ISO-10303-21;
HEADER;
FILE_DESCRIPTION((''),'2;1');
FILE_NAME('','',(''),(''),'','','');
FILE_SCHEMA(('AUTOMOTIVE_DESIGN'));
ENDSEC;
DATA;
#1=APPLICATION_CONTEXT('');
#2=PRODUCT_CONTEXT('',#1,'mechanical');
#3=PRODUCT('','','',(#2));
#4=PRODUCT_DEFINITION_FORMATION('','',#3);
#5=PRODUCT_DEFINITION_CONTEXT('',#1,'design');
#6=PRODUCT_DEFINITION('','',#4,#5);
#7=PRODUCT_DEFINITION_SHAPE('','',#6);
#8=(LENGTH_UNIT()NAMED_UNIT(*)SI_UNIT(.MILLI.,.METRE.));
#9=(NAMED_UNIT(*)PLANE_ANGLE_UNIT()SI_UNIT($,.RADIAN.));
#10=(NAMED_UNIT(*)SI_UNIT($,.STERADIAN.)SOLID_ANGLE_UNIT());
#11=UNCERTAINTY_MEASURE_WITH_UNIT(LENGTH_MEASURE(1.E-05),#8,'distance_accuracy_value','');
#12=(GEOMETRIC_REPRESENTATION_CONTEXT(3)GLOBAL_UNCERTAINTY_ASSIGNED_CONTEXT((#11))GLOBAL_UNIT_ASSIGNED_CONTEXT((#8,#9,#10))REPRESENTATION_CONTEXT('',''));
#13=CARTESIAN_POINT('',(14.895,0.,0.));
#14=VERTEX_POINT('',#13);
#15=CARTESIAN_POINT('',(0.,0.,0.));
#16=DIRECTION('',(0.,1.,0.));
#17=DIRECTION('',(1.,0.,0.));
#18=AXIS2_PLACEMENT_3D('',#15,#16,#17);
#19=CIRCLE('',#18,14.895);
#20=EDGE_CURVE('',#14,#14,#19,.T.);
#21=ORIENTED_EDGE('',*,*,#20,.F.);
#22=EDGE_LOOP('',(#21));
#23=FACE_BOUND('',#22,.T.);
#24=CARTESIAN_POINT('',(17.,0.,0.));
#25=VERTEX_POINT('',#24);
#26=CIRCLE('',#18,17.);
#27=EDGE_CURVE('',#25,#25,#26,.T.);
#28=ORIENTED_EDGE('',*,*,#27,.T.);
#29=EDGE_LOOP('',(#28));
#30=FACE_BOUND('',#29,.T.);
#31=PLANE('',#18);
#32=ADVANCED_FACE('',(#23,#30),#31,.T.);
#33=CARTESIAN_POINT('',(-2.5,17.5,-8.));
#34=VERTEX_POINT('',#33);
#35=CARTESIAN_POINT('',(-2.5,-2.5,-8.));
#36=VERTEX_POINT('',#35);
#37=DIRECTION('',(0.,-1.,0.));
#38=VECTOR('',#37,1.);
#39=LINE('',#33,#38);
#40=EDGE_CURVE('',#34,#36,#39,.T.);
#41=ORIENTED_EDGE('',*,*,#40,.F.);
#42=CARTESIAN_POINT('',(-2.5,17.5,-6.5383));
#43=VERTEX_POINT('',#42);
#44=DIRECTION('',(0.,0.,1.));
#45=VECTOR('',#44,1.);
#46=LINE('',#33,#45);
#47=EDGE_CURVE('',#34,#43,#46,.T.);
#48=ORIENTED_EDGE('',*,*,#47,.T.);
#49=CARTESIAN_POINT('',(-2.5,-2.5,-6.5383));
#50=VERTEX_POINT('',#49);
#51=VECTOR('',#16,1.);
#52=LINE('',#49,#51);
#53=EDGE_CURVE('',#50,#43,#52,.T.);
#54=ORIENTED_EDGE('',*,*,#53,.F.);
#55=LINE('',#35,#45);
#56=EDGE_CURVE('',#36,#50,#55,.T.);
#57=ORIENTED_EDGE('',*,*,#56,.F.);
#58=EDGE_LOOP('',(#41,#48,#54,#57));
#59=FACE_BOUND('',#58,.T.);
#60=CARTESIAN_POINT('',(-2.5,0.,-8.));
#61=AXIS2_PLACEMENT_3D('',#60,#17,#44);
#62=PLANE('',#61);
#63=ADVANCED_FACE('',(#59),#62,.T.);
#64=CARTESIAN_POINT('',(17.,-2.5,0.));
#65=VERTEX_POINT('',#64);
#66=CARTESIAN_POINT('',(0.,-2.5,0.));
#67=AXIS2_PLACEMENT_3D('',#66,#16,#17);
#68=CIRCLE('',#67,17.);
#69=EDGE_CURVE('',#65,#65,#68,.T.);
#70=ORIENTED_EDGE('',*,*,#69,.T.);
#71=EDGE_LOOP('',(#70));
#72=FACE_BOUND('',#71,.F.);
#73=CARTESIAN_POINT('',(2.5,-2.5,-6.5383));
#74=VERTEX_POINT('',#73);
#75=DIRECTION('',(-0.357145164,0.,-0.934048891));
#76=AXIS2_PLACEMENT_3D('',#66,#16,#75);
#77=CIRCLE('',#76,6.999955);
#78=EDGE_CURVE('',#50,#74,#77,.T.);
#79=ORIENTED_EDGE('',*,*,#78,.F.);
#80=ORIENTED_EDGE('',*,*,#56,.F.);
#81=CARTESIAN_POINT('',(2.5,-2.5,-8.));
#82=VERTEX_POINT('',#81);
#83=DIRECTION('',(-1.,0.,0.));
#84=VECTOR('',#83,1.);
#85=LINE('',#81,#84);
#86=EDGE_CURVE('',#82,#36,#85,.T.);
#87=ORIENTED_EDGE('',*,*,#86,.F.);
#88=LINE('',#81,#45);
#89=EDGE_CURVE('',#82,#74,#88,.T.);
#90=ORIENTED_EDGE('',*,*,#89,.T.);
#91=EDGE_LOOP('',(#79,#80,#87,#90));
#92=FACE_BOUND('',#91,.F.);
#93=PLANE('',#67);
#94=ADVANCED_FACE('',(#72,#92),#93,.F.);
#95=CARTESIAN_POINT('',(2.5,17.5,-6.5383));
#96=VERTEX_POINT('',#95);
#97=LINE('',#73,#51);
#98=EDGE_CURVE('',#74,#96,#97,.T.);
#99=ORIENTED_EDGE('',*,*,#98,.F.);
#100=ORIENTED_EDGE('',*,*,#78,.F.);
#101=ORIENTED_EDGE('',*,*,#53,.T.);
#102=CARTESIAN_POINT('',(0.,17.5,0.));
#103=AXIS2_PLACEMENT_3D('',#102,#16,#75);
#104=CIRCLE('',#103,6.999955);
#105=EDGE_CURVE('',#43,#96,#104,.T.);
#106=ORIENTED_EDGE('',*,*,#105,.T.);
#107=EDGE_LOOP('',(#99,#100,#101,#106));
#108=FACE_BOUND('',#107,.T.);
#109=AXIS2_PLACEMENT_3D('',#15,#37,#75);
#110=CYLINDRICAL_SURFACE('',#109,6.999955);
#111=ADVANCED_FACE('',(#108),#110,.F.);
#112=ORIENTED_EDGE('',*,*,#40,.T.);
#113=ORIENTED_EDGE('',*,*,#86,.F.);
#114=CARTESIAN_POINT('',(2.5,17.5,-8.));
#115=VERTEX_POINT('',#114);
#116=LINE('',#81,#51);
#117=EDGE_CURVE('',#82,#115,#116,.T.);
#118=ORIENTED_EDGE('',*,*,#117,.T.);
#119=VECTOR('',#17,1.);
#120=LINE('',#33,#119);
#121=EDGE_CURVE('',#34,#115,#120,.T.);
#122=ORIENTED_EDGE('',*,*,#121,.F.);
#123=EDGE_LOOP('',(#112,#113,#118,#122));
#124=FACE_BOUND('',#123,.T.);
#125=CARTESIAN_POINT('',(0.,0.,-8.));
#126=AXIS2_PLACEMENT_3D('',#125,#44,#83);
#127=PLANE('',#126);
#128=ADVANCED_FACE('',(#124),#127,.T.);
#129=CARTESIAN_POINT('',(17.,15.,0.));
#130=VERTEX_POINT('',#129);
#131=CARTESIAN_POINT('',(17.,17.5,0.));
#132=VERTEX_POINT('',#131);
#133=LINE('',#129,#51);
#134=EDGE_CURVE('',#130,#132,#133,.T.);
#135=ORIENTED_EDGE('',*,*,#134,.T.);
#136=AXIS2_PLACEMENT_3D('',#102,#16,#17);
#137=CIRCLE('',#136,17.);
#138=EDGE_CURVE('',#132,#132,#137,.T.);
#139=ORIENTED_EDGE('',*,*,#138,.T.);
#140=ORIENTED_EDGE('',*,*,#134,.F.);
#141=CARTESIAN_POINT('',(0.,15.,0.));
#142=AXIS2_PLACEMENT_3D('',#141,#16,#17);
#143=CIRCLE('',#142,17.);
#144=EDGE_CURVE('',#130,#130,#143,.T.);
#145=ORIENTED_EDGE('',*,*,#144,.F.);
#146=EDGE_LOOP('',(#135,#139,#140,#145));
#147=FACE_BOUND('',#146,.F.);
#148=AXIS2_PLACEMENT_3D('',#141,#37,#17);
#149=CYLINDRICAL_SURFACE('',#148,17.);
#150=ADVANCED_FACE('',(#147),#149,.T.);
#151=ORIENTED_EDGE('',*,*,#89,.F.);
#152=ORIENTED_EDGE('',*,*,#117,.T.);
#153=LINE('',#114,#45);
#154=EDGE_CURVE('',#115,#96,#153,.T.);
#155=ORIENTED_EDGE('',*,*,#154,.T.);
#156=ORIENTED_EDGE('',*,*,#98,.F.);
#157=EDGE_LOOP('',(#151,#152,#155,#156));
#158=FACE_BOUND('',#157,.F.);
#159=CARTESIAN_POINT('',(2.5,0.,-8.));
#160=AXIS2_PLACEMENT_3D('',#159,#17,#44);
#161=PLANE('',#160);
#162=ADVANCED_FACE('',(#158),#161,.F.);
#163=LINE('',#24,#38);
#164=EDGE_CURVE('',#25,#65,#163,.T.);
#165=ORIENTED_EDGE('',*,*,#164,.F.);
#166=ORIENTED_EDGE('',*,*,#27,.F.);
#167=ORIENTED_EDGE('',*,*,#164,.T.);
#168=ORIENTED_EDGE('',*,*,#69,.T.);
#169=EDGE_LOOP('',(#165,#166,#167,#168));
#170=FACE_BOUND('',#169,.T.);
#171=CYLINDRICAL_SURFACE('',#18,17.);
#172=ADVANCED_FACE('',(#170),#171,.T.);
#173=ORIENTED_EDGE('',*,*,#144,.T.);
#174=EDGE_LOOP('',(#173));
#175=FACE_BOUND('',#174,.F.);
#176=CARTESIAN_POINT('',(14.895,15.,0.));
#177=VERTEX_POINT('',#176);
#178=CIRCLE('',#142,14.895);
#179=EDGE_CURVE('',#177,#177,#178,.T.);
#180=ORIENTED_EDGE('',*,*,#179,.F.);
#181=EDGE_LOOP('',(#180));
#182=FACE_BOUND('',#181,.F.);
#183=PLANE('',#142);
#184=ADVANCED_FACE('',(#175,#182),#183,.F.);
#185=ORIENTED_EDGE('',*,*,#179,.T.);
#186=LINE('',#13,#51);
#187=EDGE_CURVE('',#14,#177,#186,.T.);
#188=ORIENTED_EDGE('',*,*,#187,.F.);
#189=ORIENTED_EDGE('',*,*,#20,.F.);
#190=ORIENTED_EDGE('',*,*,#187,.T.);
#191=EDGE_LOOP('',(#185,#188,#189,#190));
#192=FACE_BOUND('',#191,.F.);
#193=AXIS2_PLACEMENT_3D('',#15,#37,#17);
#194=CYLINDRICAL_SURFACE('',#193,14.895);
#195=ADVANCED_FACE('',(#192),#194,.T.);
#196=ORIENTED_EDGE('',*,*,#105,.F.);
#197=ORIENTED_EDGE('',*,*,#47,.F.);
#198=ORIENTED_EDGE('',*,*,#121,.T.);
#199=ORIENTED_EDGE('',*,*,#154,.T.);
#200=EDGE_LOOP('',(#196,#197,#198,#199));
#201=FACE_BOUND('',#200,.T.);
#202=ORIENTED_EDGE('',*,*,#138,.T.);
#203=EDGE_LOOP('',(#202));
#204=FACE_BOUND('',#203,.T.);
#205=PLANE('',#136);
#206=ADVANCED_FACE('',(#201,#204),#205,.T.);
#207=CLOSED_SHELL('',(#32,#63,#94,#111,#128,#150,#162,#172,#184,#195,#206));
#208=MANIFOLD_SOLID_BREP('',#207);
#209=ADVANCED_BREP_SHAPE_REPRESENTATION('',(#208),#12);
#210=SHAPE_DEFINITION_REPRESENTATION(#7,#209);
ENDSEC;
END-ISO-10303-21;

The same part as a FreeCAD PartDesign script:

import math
import FreeCAD as App
import Part
import Sketcher
from FreeCAD import Vector

doc = App.newDocument("Part")
body = doc.addObject("PartDesign::Body", "Body")

sketch1 = doc.addObject("Sketcher::SketchObject", "Sketch")
body.addObject(sketch1)
sketch1.AttachmentSupport = (doc.XZ_Plane, [""])
sketch1.MapMode = "FlatFace"
sketch1.addGeometry(Part.Circle(Vector(0, 0, 0), Vector(0, 0, 1), 17), False)
sketch1.addGeometry(Part.LineSegment(Vector(2.5, -8, 0), Vector(2.5, -6.5, 0)), False)
sketch1.addGeometry(Part.ArcOfCircle(Part.Circle(Vector(0, 0, 0), Vector(0, 0, 1), 7), math.radians(-69), math.radians(249)), False)
sketch1.addGeometry(Part.LineSegment(Vector(-2.5, -6.5, 0), Vector(-2.5, -8, 0)), False)
sketch1.addGeometry(Part.LineSegment(Vector(-2.5, -8, 0), Vector(2.5, -8, 0)), False)
sketch1.addConstraint(Sketcher.Constraint("Coincident", 1, 2, 2, 1))
sketch1.addConstraint(Sketcher.Constraint("Coincident", 2, 2, 3, 1))
sketch1.addConstraint(Sketcher.Constraint("Coincident", 3, 2, 4, 1))
sketch1.addConstraint(Sketcher.Constraint("Coincident", 4, 2, 1, 1))
sketch1.addConstraint(Sketcher.Constraint("Vertical", 1))
sketch1.addConstraint(Sketcher.Constraint("Vertical", 3))
sketch1.addConstraint(Sketcher.Constraint("Horizontal", 4))
sketch1.addConstraint(Sketcher.Constraint("Coincident", 0, 3, -1, 1))
sketch1.addConstraint(Sketcher.Constraint("Coincident", 2, 3, -1, 1))
sketch1.addConstraint(Sketcher.Constraint("Horizontal", 1, 2, 2, 2))
sketch1.addConstraint(Sketcher.Constraint("Diameter", 0, 34.0))
sketch1.addConstraint(Sketcher.Constraint("Radius", 2, 7.0))
sketch1.addConstraint(Sketcher.Constraint("DistanceY", 3, 2, -1, 1, 8.0))
sketch1.addConstraint(Sketcher.Constraint("DistanceX", -1, 1, 1, 2, 2.5))
pad1 = doc.addObject("PartDesign::Pad", "Pad")
body.addObject(pad1)
pad1.Profile = sketch1
pad1.Length = 2.5

sketch2 = doc.addObject("Sketcher::SketchObject", "Sketch001")
body.addObject(sketch2)
sketch2.AttachmentSupport = (doc.XZ_Plane, [""])
sketch2.MapMode = "FlatFace"
sketch2.addGeometry(Part.Circle(Vector(0, 0, 0), Vector(0, 0, 1), 14.9), False)
sketch2.addGeometry(Part.LineSegment(Vector(-2.5, -8, 0), Vector(2.5, -8, 0)), False)
sketch2.addGeometry(Part.LineSegment(Vector(2.5, -8, 0), Vector(2.5, -6.5, 0)), False)
sketch2.addGeometry(Part.ArcOfCircle(Part.Circle(Vector(0, 0, 0), Vector(0, 0, 1), 7), math.radians(-69), math.radians(249)), False)
sketch2.addGeometry(Part.LineSegment(Vector(-2.5, -6.5, 0), Vector(-2.5, -8, 0)), False)
sketch2.addConstraint(Sketcher.Constraint("Coincident", 1, 2, 2, 1))
sketch2.addConstraint(Sketcher.Constraint("Coincident", 2, 2, 3, 1))
sketch2.addConstraint(Sketcher.Constraint("Coincident", 3, 2, 4, 1))
sketch2.addConstraint(Sketcher.Constraint("Coincident", 4, 2, 1, 1))
sketch2.addConstraint(Sketcher.Constraint("Horizontal", 1))
sketch2.addConstraint(Sketcher.Constraint("Vertical", 2))
sketch2.addConstraint(Sketcher.Constraint("Vertical", 4))
sketch2.addConstraint(Sketcher.Constraint("Coincident", 0, 3, -1, 1))
sketch2.addConstraint(Sketcher.Constraint("Coincident", 3, 3, -1, 1))
sketch2.addConstraint(Sketcher.Constraint("Horizontal", 2, 2, 3, 2))
sketch2.addConstraint(Sketcher.Constraint("Radius", 3, 7.0))
sketch2.addConstraint(Sketcher.Constraint("Diameter", 0, 29.79))
sketch2.addConstraint(Sketcher.Constraint("DistanceY", 1, 2, -1, 1, 8.0))
sketch2.addConstraint(Sketcher.Constraint("DistanceX", -1, 1, 1, 2, 2.5))
pad2 = doc.addObject("PartDesign::Pad", "Pad001")
body.addObject(pad2)
pad2.Profile = sketch2
pad2.Length = 15
pad2.Reversed = True

sketch3 = doc.addObject("Sketcher::SketchObject", "Sketch002")
body.addObject(sketch3)
sketch3.AttachmentSupport = (doc.XZ_Plane, [""])
sketch3.MapMode = "FlatFace"
sketch3.AttachmentOffset = App.Placement(Vector(0, 0, -15), App.Rotation())
sketch3.addGeometry(Part.Circle(Vector(0, 0, 0), Vector(0, 0, 1), 17), False)
sketch3.addGeometry(Part.LineSegment(Vector(2.5, -8, 0), Vector(2.5, -6.5, 0)), False)
sketch3.addGeometry(Part.ArcOfCircle(Part.Circle(Vector(0, 0, 0), Vector(0, 0, 1), 7), math.radians(-69), math.radians(249)), False)
sketch3.addGeometry(Part.LineSegment(Vector(-2.5, -6.5, 0), Vector(-2.5, -8, 0)), False)
sketch3.addGeometry(Part.LineSegment(Vector(-2.5, -8, 0), Vector(2.5, -8, 0)), False)
sketch3.addConstraint(Sketcher.Constraint("Coincident", 1, 2, 2, 1))
sketch3.addConstraint(Sketcher.Constraint("Coincident", 2, 2, 3, 1))
sketch3.addConstraint(Sketcher.Constraint("Coincident", 3, 2, 4, 1))
sketch3.addConstraint(Sketcher.Constraint("Coincident", 4, 2, 1, 1))
sketch3.addConstraint(Sketcher.Constraint("Vertical", 1))
sketch3.addConstraint(Sketcher.Constraint("Vertical", 3))
sketch3.addConstraint(Sketcher.Constraint("Horizontal", 4))
sketch3.addConstraint(Sketcher.Constraint("Coincident", 0, 3, -1, 1))
sketch3.addConstraint(Sketcher.Constraint("Coincident", 2, 3, -1, 1))
sketch3.addConstraint(Sketcher.Constraint("Horizontal", 1, 2, 2, 2))
sketch3.addConstraint(Sketcher.Constraint("Diameter", 0, 34.0))
sketch3.addConstraint(Sketcher.Constraint("Radius", 2, 7.0))
sketch3.addConstraint(Sketcher.Constraint("DistanceY", 3, 2, -1, 1, 8.0))
sketch3.addConstraint(Sketcher.Constraint("DistanceX", -1, 1, 1, 2, 2.5))
pad3 = doc.addObject("PartDesign::Pad", "Pad002")
body.addObject(pad3)
pad3.Profile = sketch3
pad3.Length = 2.5
pad3.Reversed = True

doc.recompute()
